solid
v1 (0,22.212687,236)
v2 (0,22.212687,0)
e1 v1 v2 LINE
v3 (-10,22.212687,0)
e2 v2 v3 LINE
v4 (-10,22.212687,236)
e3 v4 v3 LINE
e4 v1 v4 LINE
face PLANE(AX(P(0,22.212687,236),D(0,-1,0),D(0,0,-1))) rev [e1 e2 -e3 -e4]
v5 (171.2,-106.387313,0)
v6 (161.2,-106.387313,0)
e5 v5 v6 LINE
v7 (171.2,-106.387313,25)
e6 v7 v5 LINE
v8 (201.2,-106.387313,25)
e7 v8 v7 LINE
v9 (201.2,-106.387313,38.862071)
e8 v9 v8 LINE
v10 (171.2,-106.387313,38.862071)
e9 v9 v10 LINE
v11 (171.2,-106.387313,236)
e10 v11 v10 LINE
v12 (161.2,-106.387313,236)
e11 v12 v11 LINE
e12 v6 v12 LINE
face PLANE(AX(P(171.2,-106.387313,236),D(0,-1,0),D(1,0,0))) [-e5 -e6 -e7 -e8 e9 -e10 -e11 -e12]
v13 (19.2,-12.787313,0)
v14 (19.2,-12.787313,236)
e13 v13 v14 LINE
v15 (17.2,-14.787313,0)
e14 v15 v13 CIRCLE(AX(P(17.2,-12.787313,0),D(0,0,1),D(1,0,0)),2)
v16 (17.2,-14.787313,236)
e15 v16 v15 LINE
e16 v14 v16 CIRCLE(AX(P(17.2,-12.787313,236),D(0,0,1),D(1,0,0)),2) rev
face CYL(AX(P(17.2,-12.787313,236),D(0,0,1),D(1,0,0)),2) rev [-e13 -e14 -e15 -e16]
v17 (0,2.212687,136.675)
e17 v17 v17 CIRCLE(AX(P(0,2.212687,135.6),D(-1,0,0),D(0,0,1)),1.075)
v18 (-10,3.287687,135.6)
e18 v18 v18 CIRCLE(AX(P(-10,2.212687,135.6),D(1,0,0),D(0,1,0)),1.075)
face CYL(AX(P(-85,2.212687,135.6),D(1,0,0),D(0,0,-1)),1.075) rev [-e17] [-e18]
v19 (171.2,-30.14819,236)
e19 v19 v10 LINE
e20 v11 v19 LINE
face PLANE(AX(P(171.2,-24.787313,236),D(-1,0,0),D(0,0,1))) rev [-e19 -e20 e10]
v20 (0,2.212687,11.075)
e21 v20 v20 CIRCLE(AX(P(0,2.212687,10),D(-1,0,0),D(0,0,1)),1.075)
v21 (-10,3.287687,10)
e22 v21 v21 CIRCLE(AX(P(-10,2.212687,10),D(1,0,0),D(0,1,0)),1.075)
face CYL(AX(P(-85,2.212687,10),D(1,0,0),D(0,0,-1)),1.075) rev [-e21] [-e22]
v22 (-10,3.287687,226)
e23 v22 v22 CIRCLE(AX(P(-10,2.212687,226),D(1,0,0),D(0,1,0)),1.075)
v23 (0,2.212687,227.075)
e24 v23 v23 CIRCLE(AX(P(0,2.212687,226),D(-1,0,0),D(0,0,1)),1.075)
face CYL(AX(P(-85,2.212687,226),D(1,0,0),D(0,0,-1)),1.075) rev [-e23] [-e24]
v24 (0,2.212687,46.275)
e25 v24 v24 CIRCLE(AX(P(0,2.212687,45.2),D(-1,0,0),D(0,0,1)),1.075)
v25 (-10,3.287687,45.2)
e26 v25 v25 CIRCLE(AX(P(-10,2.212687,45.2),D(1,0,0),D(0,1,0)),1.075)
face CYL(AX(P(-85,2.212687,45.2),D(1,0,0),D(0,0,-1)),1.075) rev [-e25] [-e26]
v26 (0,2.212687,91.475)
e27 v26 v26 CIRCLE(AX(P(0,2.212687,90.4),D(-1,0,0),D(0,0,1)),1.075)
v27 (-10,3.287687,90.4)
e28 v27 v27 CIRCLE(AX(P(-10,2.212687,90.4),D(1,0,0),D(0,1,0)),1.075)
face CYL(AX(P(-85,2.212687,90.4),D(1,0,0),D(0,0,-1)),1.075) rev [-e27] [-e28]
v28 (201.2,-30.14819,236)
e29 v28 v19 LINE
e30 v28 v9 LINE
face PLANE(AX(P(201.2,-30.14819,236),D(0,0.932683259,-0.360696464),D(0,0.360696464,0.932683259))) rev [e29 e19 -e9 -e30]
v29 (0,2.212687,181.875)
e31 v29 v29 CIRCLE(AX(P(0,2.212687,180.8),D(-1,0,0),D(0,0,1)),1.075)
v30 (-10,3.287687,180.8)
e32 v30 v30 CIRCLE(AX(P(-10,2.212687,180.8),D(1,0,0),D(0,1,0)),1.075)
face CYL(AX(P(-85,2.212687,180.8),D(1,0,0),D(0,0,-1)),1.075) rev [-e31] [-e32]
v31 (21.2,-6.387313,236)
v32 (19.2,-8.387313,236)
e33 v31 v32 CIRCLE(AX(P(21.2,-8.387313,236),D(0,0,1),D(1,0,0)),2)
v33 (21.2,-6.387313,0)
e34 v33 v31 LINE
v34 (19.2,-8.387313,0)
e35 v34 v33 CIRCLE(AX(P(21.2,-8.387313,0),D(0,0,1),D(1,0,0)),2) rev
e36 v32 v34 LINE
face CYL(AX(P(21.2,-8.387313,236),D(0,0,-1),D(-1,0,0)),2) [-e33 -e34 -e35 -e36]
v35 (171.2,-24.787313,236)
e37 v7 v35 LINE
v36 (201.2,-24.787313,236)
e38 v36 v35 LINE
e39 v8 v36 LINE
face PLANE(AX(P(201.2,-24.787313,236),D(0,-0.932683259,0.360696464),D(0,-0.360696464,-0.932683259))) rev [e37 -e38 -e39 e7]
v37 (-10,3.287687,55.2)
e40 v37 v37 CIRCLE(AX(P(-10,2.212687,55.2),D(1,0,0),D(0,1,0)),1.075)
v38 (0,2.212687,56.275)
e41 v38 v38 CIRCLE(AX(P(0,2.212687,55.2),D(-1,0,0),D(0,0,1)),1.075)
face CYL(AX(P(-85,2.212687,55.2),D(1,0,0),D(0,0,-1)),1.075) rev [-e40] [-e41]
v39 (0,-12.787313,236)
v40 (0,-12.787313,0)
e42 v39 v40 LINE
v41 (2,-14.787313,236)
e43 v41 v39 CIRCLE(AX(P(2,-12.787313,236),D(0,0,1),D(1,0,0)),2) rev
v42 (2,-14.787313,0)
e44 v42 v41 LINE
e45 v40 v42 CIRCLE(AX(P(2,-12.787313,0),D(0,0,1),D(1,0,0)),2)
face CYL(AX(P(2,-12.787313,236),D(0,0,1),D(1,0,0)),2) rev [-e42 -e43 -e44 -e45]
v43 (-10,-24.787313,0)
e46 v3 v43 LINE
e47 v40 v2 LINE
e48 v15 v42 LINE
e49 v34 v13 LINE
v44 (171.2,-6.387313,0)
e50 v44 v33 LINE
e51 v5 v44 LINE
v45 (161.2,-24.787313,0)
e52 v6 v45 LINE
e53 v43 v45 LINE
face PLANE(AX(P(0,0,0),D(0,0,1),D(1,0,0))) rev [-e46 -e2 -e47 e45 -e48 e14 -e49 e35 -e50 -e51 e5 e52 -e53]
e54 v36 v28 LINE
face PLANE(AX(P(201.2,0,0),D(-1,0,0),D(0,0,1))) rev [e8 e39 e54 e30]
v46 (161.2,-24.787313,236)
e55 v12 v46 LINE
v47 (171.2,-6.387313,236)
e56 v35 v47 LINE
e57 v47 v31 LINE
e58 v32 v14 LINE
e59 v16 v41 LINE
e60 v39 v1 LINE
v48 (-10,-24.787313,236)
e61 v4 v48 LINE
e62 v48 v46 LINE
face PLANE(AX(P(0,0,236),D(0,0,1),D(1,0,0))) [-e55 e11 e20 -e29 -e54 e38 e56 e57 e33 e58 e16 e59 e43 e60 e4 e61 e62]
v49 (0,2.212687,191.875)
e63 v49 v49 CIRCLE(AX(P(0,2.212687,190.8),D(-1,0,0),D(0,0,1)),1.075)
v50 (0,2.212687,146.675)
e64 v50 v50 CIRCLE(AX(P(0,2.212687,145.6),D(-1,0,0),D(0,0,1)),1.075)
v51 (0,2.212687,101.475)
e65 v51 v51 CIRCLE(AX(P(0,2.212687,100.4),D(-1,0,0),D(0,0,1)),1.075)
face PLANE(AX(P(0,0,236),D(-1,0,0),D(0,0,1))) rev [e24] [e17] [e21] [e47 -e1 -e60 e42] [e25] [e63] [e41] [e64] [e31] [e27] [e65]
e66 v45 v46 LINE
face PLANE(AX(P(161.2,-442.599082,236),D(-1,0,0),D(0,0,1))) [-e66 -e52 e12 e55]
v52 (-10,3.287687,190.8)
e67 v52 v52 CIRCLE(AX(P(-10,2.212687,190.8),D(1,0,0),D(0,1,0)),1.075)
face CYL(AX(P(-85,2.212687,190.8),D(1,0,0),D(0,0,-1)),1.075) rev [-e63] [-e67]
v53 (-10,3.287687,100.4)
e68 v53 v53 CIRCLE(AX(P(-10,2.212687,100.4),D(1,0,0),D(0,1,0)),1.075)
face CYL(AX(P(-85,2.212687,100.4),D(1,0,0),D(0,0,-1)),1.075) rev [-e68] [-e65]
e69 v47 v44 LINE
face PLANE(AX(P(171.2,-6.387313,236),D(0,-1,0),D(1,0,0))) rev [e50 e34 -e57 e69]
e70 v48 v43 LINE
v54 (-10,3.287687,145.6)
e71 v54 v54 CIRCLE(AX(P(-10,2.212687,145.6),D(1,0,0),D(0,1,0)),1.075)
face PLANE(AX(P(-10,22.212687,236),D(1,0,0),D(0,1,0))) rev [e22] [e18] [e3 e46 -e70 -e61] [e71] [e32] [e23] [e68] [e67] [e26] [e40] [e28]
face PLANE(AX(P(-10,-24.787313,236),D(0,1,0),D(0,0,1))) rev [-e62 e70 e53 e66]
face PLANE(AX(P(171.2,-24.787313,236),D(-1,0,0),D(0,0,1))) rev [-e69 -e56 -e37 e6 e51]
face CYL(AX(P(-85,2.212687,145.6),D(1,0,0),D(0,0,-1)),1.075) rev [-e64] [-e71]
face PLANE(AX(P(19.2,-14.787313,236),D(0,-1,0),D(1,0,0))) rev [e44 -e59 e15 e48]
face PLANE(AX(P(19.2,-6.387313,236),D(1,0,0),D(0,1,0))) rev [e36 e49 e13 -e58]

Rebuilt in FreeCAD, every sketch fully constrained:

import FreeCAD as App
import Part
import Sketcher

V = App.Vector


def edges_at(feature, points):
    """Names of the edges that pass closest to the given points."""
    edges = feature.Shape.Edges
    near = lambda p: min(range(len(edges)), key=lambda i: edges[i].distToShape(Part.Vertex(*p))[0])
    return sorted({f"Edge{near(p) + 1}" for p in points})


def add_polygon(sketch, points):
    """Adds a closed chain of lines whose ends are joined by coincident constraints."""
    first, n = sketch.GeometryCount, len(points)
    for a, b in zip(points, points[1:] + points[:1]):
        sketch.addGeometry(Part.LineSegment(App.Vector(*a, 0), App.Vector(*b, 0)), False)
    for i in range(n):
        sketch.addConstraint(Sketcher.Constraint("Coincident", first + i, 2, first + (i + 1) % n, 1))

doc = App.newDocument("Part")
body = doc.addObject("PartDesign::Body", "Body")

# Sketch on XY plane
sketch1 = doc.addObject("Sketcher::SketchObject", "Sketch")
body.addObject(sketch1)
sketch1.AttachmentSupport = (doc.XY_Plane, [""])
sketch1.MapMode = "FlatFace"
add_polygon(sketch1, [(0, 22), (-10, 22), (-10, -25), (171, -25), (171, -6), (19, -6), (19, -15), (0, -15)])  # lines 0-7
sketch1.addConstraint([
    Sketcher.Constraint("Horizontal", 0),
    Sketcher.Constraint("Vertical", 1),
    Sketcher.Constraint("Horizontal", 2),
    Sketcher.Constraint("Vertical", 3),
    Sketcher.Constraint("Horizontal", 4),
    Sketcher.Constraint("Vertical", 5),
    Sketcher.Constraint("Horizontal", 6),
    Sketcher.Constraint("Vertical", 7),
    Sketcher.Constraint("PointOnObject", 6, 2, -2),
    Sketcher.Constraint("DistanceX", 0, 2, 0, 1, 10.0),
    Sketcher.Constraint("DistanceX", 4, 2, 4, 1, 152.0),
    Sketcher.Constraint("DistanceY", 1, 2, 1, 1, 47.0),
    Sketcher.Constraint("DistanceY", 7, 1, 7, 2, 37.0),
    Sketcher.Constraint("DistanceX", 2, 1, 2, 2, 181.2),
    Sketcher.Constraint("DistanceY", 3, 1, 3, 2, 18.4),
    Sketcher.Constraint("DistanceY", -1, 1, 0, 2, 22.212687),
])
pad1 = doc.addObject("PartDesign::Pad", "Pad")
body.addObject(pad1)
pad1.Profile = sketch1
pad1.Length = 236

# Sketch on YZ plane
sketch2 = doc.addObject("Sketcher::SketchObject", "Sketch001")
body.addObject(sketch2)
sketch2.AttachmentSupport = (doc.YZ_Plane, [""])
sketch2.MapMode = "FlatFace"
sketch2.addGeometry([
    Part.Circle(V(2.2, 10, 0), V(0, 0, 1), 1.1),  # 0
    Part.Circle(V(2.2, 45.2, 0), V(0, 0, 1), 1.1),  # 1
    Part.Circle(V(2.2, 55.2, 0), V(0, 0, 1), 1.1),  # 2
    Part.Circle(V(2.2, 90.4, 0), V(0, 0, 1), 1.1),  # 3
    Part.Circle(V(2.2, 100.4, 0), V(0, 0, 1), 1.1),  # 4
    Part.Circle(V(2.2, 135.6, 0), V(0, 0, 1), 1.1),  # 5
    Part.Circle(V(2.2, 145.6, 0), V(0, 0, 1), 1.1),  # 6
    Part.Circle(V(2.2, 180.8, 0), V(0, 0, 1), 1.1),  # 7
    Part.Circle(V(2.2, 190.8, 0), V(0, 0, 1), 1.1),  # 8
    Part.Circle(V(2.2, 226, 0), V(0, 0, 1), 1.1),  # 9
], False)
sketch2.addConstraint([
    Sketcher.Constraint("Equal", 0, 1),
    Sketcher.Constraint("Equal", 1, 2),
    Sketcher.Constraint("Equal", 2, 3),
    Sketcher.Constraint("Equal", 3, 4),
    Sketcher.Constraint("Equal", 4, 5),
    Sketcher.Constraint("Equal", 5, 6),
    Sketcher.Constraint("Equal", 6, 7),
    Sketcher.Constraint("Equal", 7, 8),
    Sketcher.Constraint("Equal", 8, 9),
    Sketcher.Constraint("Vertical", 0, 3, 1, 3),
    Sketcher.Constraint("Vertical", 1, 3, 2, 3),
    Sketcher.Constraint("Vertical", 2, 3, 3, 3),
    Sketcher.Constraint("Vertical", 3, 3, 4, 3),
    Sketcher.Constraint("Vertical", 4, 3, 5, 3),
    Sketcher.Constraint("Vertical", 5, 3, 6, 3),
    Sketcher.Constraint("Vertical", 6, 3, 7, 3),
    Sketcher.Constraint("Vertical", 7, 3, 8, 3),
    Sketcher.Constraint("Vertical", 8, 3, 9, 3),
    Sketcher.Constraint("Diameter", 0, 2.15),
    Sketcher.Constraint("DistanceY", -1, 1, 0, 3, 10.0),
    Sketcher.Constraint("DistanceY", -1, 1, 9, 3, 226.0),
    Sketcher.Constraint("DistanceY", 1, 3, 2, 3, 10.0),
    Sketcher.Constraint("DistanceY", 3, 3, 4, 3, 10.0),
    Sketcher.Constraint("DistanceY", 5, 3, 6, 3, 10.0),
    Sketcher.Constraint("DistanceY", 7, 3, 8, 3, 10.0),
    Sketcher.Constraint("DistanceY", -1, 1, 1, 3, 45.2),
    Sketcher.Constraint("DistanceY", -1, 1, 3, 3, 90.4),
    Sketcher.Constraint("DistanceY", -1, 1, 5, 3, 135.6),
    Sketcher.Constraint("DistanceY", -1, 1, 7, 3, 180.8),
    Sketcher.Constraint("DistanceX", -1, 1, 0, 3, 2.212687),
])
pocket1 = doc.addObject("PartDesign::Pocket", "Pocket")
body.addObject(pocket1)
pocket1.Profile = sketch2
pocket1.Length = 170
pocket1.Midplane = True
doc.recompute()

fillet = doc.addObject("PartDesign::Fillet", "Fillet")
body.addObject(fillet)
fillet.Base = (pocket1, edges_at(pocket1, [(0, -14.787, 118), (19.2, -14.787, 118), (19.2, -6.387, 118)]))
fillet.Radius = 2

# Sketch on XZ plane
sketch3 = doc.addObject("Sketcher::SketchObject", "Sketch002")
body.addObject(sketch3)
sketch3.AttachmentSupport = (doc.XZ_Plane, [""])
sketch3.MapMode = "FlatFace"
sketch3.AttachmentOffset = App.Placement(V(0, 0, 6.387313), App.Rotation())
add_polygon(sketch3, [(161, 0), (161, 236), (171, 236), (171, 0)])  # lines 0-3
sketch3.addConstraint([
    Sketcher.Constraint("Vertical", 0),
    Sketcher.Constraint("Horizontal", 1),
    Sketcher.Constraint("Vertical", 2),
    Sketcher.Constraint("Horizontal", 3),
    Sketcher.Constraint("PointOnObject", 2, 2, -1),
    Sketcher.Constraint("DistanceX", 1, 1, 1, 2, 10.0),
    Sketcher.Constraint("DistanceY", 0, 1, 0, 2, 236.0),
    Sketcher.Constraint("DistanceX", -1, 1, 0, 2, 161.2),
])
pad2 = doc.addObject("PartDesign::Pad", "Pad001")
body.addObject(pad2)
pad2.Profile = sketch3
pad2.Length = 100

# Sketch on YZ plane
sketch4 = doc.addObject("Sketcher::SketchObject", "Sketch003")
body.addObject(sketch4)
sketch4.AttachmentSupport = (doc.YZ_Plane, [""])
sketch4.MapMode = "FlatFace"
sketch4.AttachmentOffset = App.Placement(V(0, 0, 171.2), App.Rotation())
add_polygon(sketch4, [(-25, 236), (-30, 236), (-106, 39), (-106, 25)])  # lines 0-3
sketch4.addConstraint([
    Sketcher.Constraint("Horizontal", 0),
    Sketcher.Constraint("Vertical", 2),
    Sketcher.Constraint("Parallel", 1, 3),
    Sketcher.Constraint("DistanceY", -1, 1, 0, 2, 236.0),
    Sketcher.Constraint("DistanceY", -1, 1, 2, 2, 25.0),
    Sketcher.Constraint("DistanceX", 1, 2, 3, 2, 81.6),
    Sketcher.Constraint("DistanceY", 2, 2, 2, 1, 13.862071),
    Sketcher.Constraint("DistanceX", 0, 2, -1, 1, 30.14819),
])
pad3 = doc.addObject("PartDesign::Pad", "Pad002")
body.addObject(pad3)
pad3.Profile = sketch4
pad3.Length = 30

doc.recompute()
